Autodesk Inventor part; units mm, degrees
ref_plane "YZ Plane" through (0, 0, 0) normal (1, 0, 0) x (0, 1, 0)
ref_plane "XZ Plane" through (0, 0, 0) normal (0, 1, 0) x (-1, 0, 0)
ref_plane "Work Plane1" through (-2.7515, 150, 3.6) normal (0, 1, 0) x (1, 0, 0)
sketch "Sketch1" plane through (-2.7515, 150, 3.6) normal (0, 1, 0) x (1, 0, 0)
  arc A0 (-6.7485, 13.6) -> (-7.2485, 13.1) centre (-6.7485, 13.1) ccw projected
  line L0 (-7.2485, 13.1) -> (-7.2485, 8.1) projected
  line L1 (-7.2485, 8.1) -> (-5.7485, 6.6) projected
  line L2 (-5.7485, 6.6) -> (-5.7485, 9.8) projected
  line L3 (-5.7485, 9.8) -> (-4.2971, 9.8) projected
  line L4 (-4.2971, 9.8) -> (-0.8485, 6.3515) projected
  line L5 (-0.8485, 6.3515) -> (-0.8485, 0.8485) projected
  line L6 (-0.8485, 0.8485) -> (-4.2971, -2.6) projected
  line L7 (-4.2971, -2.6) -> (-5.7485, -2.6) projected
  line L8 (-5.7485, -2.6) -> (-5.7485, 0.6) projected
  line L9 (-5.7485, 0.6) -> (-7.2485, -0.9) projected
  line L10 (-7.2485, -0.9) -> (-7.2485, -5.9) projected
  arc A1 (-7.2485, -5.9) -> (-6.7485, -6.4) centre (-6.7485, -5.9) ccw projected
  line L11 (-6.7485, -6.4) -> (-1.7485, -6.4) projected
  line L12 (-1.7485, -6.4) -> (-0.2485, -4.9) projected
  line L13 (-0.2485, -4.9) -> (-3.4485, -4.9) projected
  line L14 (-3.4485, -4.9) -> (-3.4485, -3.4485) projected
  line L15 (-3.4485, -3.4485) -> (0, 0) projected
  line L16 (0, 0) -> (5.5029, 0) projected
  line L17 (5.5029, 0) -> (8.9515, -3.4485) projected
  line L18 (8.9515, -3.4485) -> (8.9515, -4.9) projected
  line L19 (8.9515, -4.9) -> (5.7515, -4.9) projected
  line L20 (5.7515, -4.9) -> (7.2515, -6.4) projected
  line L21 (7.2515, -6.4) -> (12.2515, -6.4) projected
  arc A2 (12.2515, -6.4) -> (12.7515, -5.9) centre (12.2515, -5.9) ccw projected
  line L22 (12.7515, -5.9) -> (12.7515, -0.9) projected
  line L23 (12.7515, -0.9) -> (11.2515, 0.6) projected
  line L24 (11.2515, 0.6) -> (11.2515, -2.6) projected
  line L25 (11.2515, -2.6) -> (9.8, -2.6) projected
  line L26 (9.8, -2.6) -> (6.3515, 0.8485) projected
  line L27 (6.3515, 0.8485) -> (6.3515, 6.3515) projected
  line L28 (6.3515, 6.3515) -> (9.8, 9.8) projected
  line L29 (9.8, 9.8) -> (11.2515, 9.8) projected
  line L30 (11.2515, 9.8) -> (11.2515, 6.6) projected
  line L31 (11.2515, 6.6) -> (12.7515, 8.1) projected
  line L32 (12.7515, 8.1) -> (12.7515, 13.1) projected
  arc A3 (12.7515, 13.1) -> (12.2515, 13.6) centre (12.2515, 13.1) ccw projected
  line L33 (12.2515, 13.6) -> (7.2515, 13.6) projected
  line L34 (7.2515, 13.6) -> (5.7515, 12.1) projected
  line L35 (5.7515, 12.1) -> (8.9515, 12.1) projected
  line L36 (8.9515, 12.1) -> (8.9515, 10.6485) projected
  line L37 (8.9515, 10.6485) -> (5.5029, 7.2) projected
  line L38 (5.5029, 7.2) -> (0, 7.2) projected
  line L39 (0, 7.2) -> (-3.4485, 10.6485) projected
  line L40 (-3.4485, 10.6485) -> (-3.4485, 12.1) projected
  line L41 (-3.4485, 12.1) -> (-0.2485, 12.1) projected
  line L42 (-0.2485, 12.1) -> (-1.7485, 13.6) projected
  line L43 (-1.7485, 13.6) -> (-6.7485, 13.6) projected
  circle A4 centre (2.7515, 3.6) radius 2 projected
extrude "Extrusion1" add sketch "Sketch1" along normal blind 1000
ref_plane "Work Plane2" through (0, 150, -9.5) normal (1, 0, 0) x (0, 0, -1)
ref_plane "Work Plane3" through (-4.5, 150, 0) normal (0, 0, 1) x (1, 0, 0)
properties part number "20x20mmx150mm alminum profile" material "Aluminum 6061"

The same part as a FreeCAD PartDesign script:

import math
import FreeCAD as App
import Part
import Sketcher

doc = App.newDocument("Part")
body = doc.addObject("PartDesign::Body", "Body")

sketch1 = doc.addObject("Sketcher::SketchObject", "Sketch")
body.addObject(sketch1)
sketch1.AttachmentSupport = (doc.XZ_Plane, [""])
sketch1.MapMode = "FlatFace"
sketch1.AttachmentOffset = App.Placement(App.Vector(0, 0, -150), App.Rotation())
sketch1.addGeometry([
    Part.LineSegment(App.Vector(-4.5, -10, 0), App.Vector(-9.5, -10, 0)),
    Part.ArcOfCircle(Part.Circle(App.Vector(-9.5, -9.5, 0), App.Vector(0, 0, 1), 0.5), math.radians(180), math.radians(270)),
    Part.LineSegment(App.Vector(-10, -9.5, 0), App.Vector(-10, -4.5, 0)),
    Part.LineSegment(App.Vector(-10, -4.5, 0), App.Vector(-8.5, -3, 0)),
    Part.LineSegment(App.Vector(-8.5, -3, 0), App.Vector(-8.5, -6.2, 0)),
    Part.LineSegment(App.Vector(-8.5, -6.2, 0), App.Vector(-7, -6.2, 0)),
    Part.LineSegment(App.Vector(-7, -6.2, 0), App.Vector(-3.6, -2.8, 0)),
    Part.LineSegment(App.Vector(-3.6, -2.8, 0), App.Vector(-3.6, 2.8, 0)),
    Part.LineSegment(App.Vector(-3.6, 2.8, 0), App.Vector(-7, 6.2, 0)),
    Part.LineSegment(App.Vector(-7, 6.2, 0), App.Vector(-8.5, 6.2, 0)),
    Part.LineSegment(App.Vector(-8.5, 6.2, 0), App.Vector(-8.5, 3, 0)),
    Part.LineSegment(App.Vector(-8.5, 3, 0), App.Vector(-10, 4.5, 0)),
    Part.LineSegment(App.Vector(-10, 4.5, 0), App.Vector(-10, 9.5, 0)),
    Part.ArcOfCircle(Part.Circle(App.Vector(-9.5, 9.5, 0), App.Vector(0, 0, 1), 0.5), math.radians(90), math.radians(180)),
    Part.LineSegment(App.Vector(-9.5, 10, 0), App.Vector(-4.5, 10, 0)),
    Part.LineSegment(App.Vector(-4.5, 10, 0), App.Vector(-3, 8.5, 0)),
    Part.LineSegment(App.Vector(-3, 8.5, 0), App.Vector(-6.2, 8.5, 0)),
    Part.LineSegment(App.Vector(-6.2, 8.5, 0), App.Vector(-6.2, 7, 0)),
    Part.LineSegment(App.Vector(-6.2, 7, 0), App.Vector(-2.8, 3.6, 0)),
    Part.LineSegment(App.Vector(-2.8, 3.6, 0), App.Vector(2.8, 3.6, 0)),
    Part.LineSegment(App.Vector(2.8, 3.6, 0), App.Vector(6.2, 7, 0)),
    Part.LineSegment(App.Vector(6.2, 7, 0), App.Vector(6.2, 8.5, 0)),
    Part.LineSegment(App.Vector(6.2, 8.5, 0), App.Vector(3, 8.5, 0)),
    Part.LineSegment(App.Vector(3, 8.5, 0), App.Vector(4.5, 10, 0)),
    Part.LineSegment(App.Vector(4.5, 10, 0), App.Vector(9.5, 10, 0)),
    Part.ArcOfCircle(Part.Circle(App.Vector(9.5, 9.5, 0), App.Vector(0, 0, 1), 0.5), math.radians(0), math.radians(90)),
    Part.LineSegment(App.Vector(10, 9.5, 0), App.Vector(10, 4.5, 0)),
    Part.LineSegment(App.Vector(10, 4.5, 0), App.Vector(8.5, 3, 0)),
    Part.LineSegment(App.Vector(8.5, 3, 0), App.Vector(8.5, 6.2, 0)),
    Part.LineSegment(App.Vector(8.5, 6.2, 0), App.Vector(7, 6.2, 0)),
    Part.LineSegment(App.Vector(7, 6.2, 0), App.Vector(3.6, 2.8, 0)),
    Part.LineSegment(App.Vector(3.6, 2.8, 0), App.Vector(3.6, -2.8, 0)),
    Part.LineSegment(App.Vector(3.6, -2.8, 0), App.Vector(7, -6.2, 0)),
    Part.LineSegment(App.Vector(7, -6.2, 0), App.Vector(8.5, -6.2, 0)),
    Part.LineSegment(App.Vector(8.5, -6.2, 0), App.Vector(8.5, -3, 0)),
    Part.LineSegment(App.Vector(8.5, -3, 0), App.Vector(10, -4.5, 0)),
    Part.LineSegment(App.Vector(10, -4.5, 0), App.Vector(10, -9.5, 0)),
    Part.ArcOfCircle(Part.Circle(App.Vector(9.5, -9.5, 0), App.Vector(0, 0, 1), 0.5), math.radians(-90), math.radians(0)),
    Part.LineSegment(App.Vector(9.5, -10, 0), App.Vector(4.5, -10, 0)),
    Part.LineSegment(App.Vector(4.5, -10, 0), App.Vector(3, -8.5, 0)),
    Part.LineSegment(App.Vector(3, -8.5, 0), App.Vector(6.2, -8.5, 0)),
    Part.LineSegment(App.Vector(6.2, -8.5, 0), App.Vector(6.2, -7, 0)),
    Part.LineSegment(App.Vector(6.2, -7, 0), App.Vector(2.8, -3.6, 0)),
    Part.LineSegment(App.Vector(2.8, -3.6, 0), App.Vector(-2.8, -3.6, 0)),
    Part.LineSegment(App.Vector(-2.8, -3.6, 0), App.Vector(-6.2, -7, 0)),
    Part.LineSegment(App.Vector(-6.2, -7, 0), App.Vector(-6.2, -8.5, 0)),
    Part.LineSegment(App.Vector(-6.2, -8.5, 0), App.Vector(-3, -8.5, 0)),
    Part.LineSegment(App.Vector(-3, -8.5, 0), App.Vector(-4.5, -10, 0)),
    Part.Circle(App.Vector(0, 0, 0), App.Vector(0, 0, 1), 2),
], False)
sketch1.addConstraint([
    Sketcher.Constraint("Tangent", 0, 2, 1, 2),
    Sketcher.Constraint("Tangent", 1, 1, 2, 1),
    Sketcher.Constraint("Coincident", 2, 2, 3, 1),
    Sketcher.Constraint("Coincident", 3, 2, 4, 1),
    Sketcher.Constraint("Coincident", 4, 2, 5, 1),
    Sketcher.Constraint("Coincident", 5, 2, 6, 1),
    Sketcher.Constraint("Coincident", 6, 2, 7, 1),
    Sketcher.Constraint("Coincident", 7, 2, 8, 1),
    Sketcher.Constraint("Coincident", 8, 2, 9, 1),
    Sketcher.Constraint("Coincident", 9, 2, 10, 1),
    Sketcher.Constraint("Coincident", 10, 2, 11, 1),
    Sketcher.Constraint("Coincident", 11, 2, 12, 1),
    Sketcher.Constraint("Tangent", 12, 2, 13, 2),
    Sketcher.Constraint("Tangent", 13, 1, 14, 1),
    Sketcher.Constraint("Coincident", 14, 2, 15, 1),
    Sketcher.Constraint("Coincident", 15, 2, 16, 1),
    Sketcher.Constraint("Coincident", 16, 2, 17, 1),
    Sketcher.Constraint("Coincident", 17, 2, 18, 1),
    Sketcher.Constraint("Coincident", 18, 2, 19, 1),
    Sketcher.Constraint("Coincident", 19, 2, 20, 1),
    Sketcher.Constraint("Coincident", 20, 2, 21, 1),
    Sketcher.Constraint("Coincident", 21, 2, 22, 1),
    Sketcher.Constraint("Coincident", 22, 2, 23, 1),
    Sketcher.Constraint("Coincident", 23, 2, 24, 1),
    Sketcher.Constraint("Tangent", 24, 2, 25, 2),
    Sketcher.Constraint("Tangent", 25, 1, 26, 1),
    Sketcher.Constraint("Coincident", 26, 2, 27, 1),
    Sketcher.Constraint("Coincident", 27, 2, 28, 1),
    Sketcher.Constraint("Coincident", 28, 2, 29, 1),
    Sketcher.Constraint("Coincident", 29, 2, 30, 1),
    Sketcher.Constraint("Coincident", 30, 2, 31, 1),
    Sketcher.Constraint("Coincident", 31, 2, 32, 1),
    Sketcher.Constraint("Coincident", 32, 2, 33, 1),
    Sketcher.Constraint("Coincident", 33, 2, 34, 1),
    Sketcher.Constraint("Coincident", 34, 2, 35, 1),
    Sketcher.Constraint("Coincident", 35, 2, 36, 1),
    Sketcher.Constraint("Tangent", 36, 2, 37, 2),
    Sketcher.Constraint("Tangent", 37, 1, 38, 1),
    Sketcher.Constraint("Coincident", 38, 2, 39, 1),
    Sketcher.Constraint("Coincident", 39, 2, 40, 1),
    Sketcher.Constraint("Coincident", 40, 2, 41, 1),
    Sketcher.Constraint("Coincident", 41, 2, 42, 1),
    Sketcher.Constraint("Coincident", 42, 2, 43, 1),
    Sketcher.Constraint("Coincident", 43, 2, 44, 1),
    Sketcher.Constraint("Coincident", 44, 2, 45, 1),
    Sketcher.Constraint("Coincident", 45, 2, 46, 1),
    Sketcher.Constraint("Coincident", 46, 2, 47, 1),
    Sketcher.Constraint("Coincident", 47, 2, 0, 1),
    Sketcher.Constraint("Horizontal", 0),
    Sketcher.Constraint("Vertical", 2),
    Sketcher.Constraint("Vertical", 4),
    Sketcher.Constraint("Horizontal", 5),
    Sketcher.Constraint("Vertical", 7),
    Sketcher.Constraint("Horizontal", 9),
    Sketcher.Constraint("Vertical", 10),
    Sketcher.Constraint("Vertical", 12),
    Sketcher.Constraint("Horizontal", 14),
    Sketcher.Constraint("Horizontal", 16),
    Sketcher.Constraint("Vertical", 17),
    Sketcher.Constraint("Horizontal", 19),
    Sketcher.Constraint("Vertical", 21),
    Sketcher.Constraint("Horizontal", 22),
    Sketcher.Constraint("Horizontal", 24),
    Sketcher.Constraint("Vertical", 26),
    Sketcher.Constraint("Vertical", 28),
    Sketcher.Constraint("Horizontal", 29),
    Sketcher.Constraint("Vertical", 31),
    Sketcher.Constraint("Horizontal", 33),
    Sketcher.Constraint("Vertical", 34),
    Sketcher.Constraint("Vertical", 36),
    Sketcher.Constraint("Horizontal", 38),
    Sketcher.Constraint("Horizontal", 40),
    Sketcher.Constraint("Vertical", 41),
    Sketcher.Constraint("Horizontal", 43),
    Sketcher.Constraint("Vertical", 45),
    Sketcher.Constraint("Horizontal", 46),
    Sketcher.Constraint("Coincident", 48, 3, -1, 1),
    Sketcher.Constraint("Equal", 1, 13),
    Sketcher.Constraint("Equal", 13, 25),
    Sketcher.Constraint("Equal", 25, 37),
    Sketcher.Constraint("Symmetric", 1, 3, 25, 3, -1, 1),
    Sketcher.Constraint("Symmetric", 13, 3, 37, 3, -1, 1),
    Sketcher.Constraint("Symmetric", 3, 2, 27, 2, -1, 1),
    Sketcher.Constraint("Symmetric", 5, 2, 29, 2, -1, 1),
    Sketcher.Constraint("Symmetric", 6, 2, 30, 2, -1, 1),
    Sketcher.Constraint("Symmetric", 8, 2, 32, 2, -1, 1),
    Sketcher.Constraint("Symmetric", 10, 2, 34, 2, -1, 1),
    Sketcher.Constraint("Symmetric", 15, 2, 39, 2, -1, 1),
    Sketcher.Constraint("Symmetric", 17, 2, 41, 2, -1, 1),
    Sketcher.Constraint("Symmetric", 18, 2, 42, 2, -1, 1),
    Sketcher.Constraint("Symmetric", 20, 2, 44, 2, -1, 1),
    Sketcher.Constraint("Symmetric", 22, 2, 46, 2, -1, 1),
    Sketcher.Constraint("Symmetric", 13, 3, 25, 3, -2),
    Sketcher.Constraint("Symmetric", 17, 2, 20, 2, -2),
    Sketcher.Constraint("Symmetric", 15, 2, 22, 2, -2),
    Sketcher.Constraint("Symmetric", 10, 2, 27, 2, -2),
    Sketcher.Constraint("Symmetric", 8, 2, 29, 2, -2),
    Sketcher.Constraint("Parallel", 3, 6),
    Sketcher.Constraint("Perpendicular", 6, 8),
    Sketcher.Constraint("Parallel", 8, 11),
    Sketcher.Constraint("Parallel", 11, 15),
    Sketcher.Constraint("Parallel", 15, 18),
    Sketcher.Constraint("Perpendicular", 18, 20),
    Sketcher.Constraint("Parallel", 20, 23),
    Sketcher.Constraint("Parallel", 23, 27),
    Sketcher.Constraint("Perpendicular", 30, 32),
    Sketcher.Constraint("Parallel", 32, 35),
    Sketcher.Constraint("Parallel", 35, 39),
    Sketcher.Constraint("Perpendicular", 42, 44),
    Sketcher.Constraint("Parallel", 44, 47),
    Sketcher.Constraint("Horizontal", 11, 2, 26, 2),
    Sketcher.Constraint("Equal", 38, 2),
    Sketcher.Constraint("Equal", 46, 4),
    Sketcher.Constraint("Equal", 43, 7),
    Sketcher.Constraint("Equal", 33, 17),
    Sketcher.Constraint("Equal", 11, 15),
    Sketcher.Constraint("Equal", 8, 18),
    Sketcher.Constraint("Diameter", 48, 4.0),
    Sketcher.Constraint("Radius", 1, 0.5),
    Sketcher.Constraint("DistanceX", 0, 2, 0, 1, 5.0),
    Sketcher.Constraint("DistanceX", 16, 2, 16, 1, 3.2),
    Sketcher.Constraint("DistanceY", 0, 2, -1, 1, 10.0),
    Sketcher.Constraint("DistanceY", 3, 2, -1, 1, 3.0),
    Sketcher.Constraint("DistanceX", 6, 2, -1, 1, 3.6),
    Sketcher.Constraint("DistanceX", 19, 1, 19, 2, 5.503),
])
pad1 = doc.addObject("PartDesign::Pad", "Pad")
body.addObject(pad1)
pad1.Profile = sketch1
pad1.Length = 1000
pad1.Reversed = True

doc.recompute()
